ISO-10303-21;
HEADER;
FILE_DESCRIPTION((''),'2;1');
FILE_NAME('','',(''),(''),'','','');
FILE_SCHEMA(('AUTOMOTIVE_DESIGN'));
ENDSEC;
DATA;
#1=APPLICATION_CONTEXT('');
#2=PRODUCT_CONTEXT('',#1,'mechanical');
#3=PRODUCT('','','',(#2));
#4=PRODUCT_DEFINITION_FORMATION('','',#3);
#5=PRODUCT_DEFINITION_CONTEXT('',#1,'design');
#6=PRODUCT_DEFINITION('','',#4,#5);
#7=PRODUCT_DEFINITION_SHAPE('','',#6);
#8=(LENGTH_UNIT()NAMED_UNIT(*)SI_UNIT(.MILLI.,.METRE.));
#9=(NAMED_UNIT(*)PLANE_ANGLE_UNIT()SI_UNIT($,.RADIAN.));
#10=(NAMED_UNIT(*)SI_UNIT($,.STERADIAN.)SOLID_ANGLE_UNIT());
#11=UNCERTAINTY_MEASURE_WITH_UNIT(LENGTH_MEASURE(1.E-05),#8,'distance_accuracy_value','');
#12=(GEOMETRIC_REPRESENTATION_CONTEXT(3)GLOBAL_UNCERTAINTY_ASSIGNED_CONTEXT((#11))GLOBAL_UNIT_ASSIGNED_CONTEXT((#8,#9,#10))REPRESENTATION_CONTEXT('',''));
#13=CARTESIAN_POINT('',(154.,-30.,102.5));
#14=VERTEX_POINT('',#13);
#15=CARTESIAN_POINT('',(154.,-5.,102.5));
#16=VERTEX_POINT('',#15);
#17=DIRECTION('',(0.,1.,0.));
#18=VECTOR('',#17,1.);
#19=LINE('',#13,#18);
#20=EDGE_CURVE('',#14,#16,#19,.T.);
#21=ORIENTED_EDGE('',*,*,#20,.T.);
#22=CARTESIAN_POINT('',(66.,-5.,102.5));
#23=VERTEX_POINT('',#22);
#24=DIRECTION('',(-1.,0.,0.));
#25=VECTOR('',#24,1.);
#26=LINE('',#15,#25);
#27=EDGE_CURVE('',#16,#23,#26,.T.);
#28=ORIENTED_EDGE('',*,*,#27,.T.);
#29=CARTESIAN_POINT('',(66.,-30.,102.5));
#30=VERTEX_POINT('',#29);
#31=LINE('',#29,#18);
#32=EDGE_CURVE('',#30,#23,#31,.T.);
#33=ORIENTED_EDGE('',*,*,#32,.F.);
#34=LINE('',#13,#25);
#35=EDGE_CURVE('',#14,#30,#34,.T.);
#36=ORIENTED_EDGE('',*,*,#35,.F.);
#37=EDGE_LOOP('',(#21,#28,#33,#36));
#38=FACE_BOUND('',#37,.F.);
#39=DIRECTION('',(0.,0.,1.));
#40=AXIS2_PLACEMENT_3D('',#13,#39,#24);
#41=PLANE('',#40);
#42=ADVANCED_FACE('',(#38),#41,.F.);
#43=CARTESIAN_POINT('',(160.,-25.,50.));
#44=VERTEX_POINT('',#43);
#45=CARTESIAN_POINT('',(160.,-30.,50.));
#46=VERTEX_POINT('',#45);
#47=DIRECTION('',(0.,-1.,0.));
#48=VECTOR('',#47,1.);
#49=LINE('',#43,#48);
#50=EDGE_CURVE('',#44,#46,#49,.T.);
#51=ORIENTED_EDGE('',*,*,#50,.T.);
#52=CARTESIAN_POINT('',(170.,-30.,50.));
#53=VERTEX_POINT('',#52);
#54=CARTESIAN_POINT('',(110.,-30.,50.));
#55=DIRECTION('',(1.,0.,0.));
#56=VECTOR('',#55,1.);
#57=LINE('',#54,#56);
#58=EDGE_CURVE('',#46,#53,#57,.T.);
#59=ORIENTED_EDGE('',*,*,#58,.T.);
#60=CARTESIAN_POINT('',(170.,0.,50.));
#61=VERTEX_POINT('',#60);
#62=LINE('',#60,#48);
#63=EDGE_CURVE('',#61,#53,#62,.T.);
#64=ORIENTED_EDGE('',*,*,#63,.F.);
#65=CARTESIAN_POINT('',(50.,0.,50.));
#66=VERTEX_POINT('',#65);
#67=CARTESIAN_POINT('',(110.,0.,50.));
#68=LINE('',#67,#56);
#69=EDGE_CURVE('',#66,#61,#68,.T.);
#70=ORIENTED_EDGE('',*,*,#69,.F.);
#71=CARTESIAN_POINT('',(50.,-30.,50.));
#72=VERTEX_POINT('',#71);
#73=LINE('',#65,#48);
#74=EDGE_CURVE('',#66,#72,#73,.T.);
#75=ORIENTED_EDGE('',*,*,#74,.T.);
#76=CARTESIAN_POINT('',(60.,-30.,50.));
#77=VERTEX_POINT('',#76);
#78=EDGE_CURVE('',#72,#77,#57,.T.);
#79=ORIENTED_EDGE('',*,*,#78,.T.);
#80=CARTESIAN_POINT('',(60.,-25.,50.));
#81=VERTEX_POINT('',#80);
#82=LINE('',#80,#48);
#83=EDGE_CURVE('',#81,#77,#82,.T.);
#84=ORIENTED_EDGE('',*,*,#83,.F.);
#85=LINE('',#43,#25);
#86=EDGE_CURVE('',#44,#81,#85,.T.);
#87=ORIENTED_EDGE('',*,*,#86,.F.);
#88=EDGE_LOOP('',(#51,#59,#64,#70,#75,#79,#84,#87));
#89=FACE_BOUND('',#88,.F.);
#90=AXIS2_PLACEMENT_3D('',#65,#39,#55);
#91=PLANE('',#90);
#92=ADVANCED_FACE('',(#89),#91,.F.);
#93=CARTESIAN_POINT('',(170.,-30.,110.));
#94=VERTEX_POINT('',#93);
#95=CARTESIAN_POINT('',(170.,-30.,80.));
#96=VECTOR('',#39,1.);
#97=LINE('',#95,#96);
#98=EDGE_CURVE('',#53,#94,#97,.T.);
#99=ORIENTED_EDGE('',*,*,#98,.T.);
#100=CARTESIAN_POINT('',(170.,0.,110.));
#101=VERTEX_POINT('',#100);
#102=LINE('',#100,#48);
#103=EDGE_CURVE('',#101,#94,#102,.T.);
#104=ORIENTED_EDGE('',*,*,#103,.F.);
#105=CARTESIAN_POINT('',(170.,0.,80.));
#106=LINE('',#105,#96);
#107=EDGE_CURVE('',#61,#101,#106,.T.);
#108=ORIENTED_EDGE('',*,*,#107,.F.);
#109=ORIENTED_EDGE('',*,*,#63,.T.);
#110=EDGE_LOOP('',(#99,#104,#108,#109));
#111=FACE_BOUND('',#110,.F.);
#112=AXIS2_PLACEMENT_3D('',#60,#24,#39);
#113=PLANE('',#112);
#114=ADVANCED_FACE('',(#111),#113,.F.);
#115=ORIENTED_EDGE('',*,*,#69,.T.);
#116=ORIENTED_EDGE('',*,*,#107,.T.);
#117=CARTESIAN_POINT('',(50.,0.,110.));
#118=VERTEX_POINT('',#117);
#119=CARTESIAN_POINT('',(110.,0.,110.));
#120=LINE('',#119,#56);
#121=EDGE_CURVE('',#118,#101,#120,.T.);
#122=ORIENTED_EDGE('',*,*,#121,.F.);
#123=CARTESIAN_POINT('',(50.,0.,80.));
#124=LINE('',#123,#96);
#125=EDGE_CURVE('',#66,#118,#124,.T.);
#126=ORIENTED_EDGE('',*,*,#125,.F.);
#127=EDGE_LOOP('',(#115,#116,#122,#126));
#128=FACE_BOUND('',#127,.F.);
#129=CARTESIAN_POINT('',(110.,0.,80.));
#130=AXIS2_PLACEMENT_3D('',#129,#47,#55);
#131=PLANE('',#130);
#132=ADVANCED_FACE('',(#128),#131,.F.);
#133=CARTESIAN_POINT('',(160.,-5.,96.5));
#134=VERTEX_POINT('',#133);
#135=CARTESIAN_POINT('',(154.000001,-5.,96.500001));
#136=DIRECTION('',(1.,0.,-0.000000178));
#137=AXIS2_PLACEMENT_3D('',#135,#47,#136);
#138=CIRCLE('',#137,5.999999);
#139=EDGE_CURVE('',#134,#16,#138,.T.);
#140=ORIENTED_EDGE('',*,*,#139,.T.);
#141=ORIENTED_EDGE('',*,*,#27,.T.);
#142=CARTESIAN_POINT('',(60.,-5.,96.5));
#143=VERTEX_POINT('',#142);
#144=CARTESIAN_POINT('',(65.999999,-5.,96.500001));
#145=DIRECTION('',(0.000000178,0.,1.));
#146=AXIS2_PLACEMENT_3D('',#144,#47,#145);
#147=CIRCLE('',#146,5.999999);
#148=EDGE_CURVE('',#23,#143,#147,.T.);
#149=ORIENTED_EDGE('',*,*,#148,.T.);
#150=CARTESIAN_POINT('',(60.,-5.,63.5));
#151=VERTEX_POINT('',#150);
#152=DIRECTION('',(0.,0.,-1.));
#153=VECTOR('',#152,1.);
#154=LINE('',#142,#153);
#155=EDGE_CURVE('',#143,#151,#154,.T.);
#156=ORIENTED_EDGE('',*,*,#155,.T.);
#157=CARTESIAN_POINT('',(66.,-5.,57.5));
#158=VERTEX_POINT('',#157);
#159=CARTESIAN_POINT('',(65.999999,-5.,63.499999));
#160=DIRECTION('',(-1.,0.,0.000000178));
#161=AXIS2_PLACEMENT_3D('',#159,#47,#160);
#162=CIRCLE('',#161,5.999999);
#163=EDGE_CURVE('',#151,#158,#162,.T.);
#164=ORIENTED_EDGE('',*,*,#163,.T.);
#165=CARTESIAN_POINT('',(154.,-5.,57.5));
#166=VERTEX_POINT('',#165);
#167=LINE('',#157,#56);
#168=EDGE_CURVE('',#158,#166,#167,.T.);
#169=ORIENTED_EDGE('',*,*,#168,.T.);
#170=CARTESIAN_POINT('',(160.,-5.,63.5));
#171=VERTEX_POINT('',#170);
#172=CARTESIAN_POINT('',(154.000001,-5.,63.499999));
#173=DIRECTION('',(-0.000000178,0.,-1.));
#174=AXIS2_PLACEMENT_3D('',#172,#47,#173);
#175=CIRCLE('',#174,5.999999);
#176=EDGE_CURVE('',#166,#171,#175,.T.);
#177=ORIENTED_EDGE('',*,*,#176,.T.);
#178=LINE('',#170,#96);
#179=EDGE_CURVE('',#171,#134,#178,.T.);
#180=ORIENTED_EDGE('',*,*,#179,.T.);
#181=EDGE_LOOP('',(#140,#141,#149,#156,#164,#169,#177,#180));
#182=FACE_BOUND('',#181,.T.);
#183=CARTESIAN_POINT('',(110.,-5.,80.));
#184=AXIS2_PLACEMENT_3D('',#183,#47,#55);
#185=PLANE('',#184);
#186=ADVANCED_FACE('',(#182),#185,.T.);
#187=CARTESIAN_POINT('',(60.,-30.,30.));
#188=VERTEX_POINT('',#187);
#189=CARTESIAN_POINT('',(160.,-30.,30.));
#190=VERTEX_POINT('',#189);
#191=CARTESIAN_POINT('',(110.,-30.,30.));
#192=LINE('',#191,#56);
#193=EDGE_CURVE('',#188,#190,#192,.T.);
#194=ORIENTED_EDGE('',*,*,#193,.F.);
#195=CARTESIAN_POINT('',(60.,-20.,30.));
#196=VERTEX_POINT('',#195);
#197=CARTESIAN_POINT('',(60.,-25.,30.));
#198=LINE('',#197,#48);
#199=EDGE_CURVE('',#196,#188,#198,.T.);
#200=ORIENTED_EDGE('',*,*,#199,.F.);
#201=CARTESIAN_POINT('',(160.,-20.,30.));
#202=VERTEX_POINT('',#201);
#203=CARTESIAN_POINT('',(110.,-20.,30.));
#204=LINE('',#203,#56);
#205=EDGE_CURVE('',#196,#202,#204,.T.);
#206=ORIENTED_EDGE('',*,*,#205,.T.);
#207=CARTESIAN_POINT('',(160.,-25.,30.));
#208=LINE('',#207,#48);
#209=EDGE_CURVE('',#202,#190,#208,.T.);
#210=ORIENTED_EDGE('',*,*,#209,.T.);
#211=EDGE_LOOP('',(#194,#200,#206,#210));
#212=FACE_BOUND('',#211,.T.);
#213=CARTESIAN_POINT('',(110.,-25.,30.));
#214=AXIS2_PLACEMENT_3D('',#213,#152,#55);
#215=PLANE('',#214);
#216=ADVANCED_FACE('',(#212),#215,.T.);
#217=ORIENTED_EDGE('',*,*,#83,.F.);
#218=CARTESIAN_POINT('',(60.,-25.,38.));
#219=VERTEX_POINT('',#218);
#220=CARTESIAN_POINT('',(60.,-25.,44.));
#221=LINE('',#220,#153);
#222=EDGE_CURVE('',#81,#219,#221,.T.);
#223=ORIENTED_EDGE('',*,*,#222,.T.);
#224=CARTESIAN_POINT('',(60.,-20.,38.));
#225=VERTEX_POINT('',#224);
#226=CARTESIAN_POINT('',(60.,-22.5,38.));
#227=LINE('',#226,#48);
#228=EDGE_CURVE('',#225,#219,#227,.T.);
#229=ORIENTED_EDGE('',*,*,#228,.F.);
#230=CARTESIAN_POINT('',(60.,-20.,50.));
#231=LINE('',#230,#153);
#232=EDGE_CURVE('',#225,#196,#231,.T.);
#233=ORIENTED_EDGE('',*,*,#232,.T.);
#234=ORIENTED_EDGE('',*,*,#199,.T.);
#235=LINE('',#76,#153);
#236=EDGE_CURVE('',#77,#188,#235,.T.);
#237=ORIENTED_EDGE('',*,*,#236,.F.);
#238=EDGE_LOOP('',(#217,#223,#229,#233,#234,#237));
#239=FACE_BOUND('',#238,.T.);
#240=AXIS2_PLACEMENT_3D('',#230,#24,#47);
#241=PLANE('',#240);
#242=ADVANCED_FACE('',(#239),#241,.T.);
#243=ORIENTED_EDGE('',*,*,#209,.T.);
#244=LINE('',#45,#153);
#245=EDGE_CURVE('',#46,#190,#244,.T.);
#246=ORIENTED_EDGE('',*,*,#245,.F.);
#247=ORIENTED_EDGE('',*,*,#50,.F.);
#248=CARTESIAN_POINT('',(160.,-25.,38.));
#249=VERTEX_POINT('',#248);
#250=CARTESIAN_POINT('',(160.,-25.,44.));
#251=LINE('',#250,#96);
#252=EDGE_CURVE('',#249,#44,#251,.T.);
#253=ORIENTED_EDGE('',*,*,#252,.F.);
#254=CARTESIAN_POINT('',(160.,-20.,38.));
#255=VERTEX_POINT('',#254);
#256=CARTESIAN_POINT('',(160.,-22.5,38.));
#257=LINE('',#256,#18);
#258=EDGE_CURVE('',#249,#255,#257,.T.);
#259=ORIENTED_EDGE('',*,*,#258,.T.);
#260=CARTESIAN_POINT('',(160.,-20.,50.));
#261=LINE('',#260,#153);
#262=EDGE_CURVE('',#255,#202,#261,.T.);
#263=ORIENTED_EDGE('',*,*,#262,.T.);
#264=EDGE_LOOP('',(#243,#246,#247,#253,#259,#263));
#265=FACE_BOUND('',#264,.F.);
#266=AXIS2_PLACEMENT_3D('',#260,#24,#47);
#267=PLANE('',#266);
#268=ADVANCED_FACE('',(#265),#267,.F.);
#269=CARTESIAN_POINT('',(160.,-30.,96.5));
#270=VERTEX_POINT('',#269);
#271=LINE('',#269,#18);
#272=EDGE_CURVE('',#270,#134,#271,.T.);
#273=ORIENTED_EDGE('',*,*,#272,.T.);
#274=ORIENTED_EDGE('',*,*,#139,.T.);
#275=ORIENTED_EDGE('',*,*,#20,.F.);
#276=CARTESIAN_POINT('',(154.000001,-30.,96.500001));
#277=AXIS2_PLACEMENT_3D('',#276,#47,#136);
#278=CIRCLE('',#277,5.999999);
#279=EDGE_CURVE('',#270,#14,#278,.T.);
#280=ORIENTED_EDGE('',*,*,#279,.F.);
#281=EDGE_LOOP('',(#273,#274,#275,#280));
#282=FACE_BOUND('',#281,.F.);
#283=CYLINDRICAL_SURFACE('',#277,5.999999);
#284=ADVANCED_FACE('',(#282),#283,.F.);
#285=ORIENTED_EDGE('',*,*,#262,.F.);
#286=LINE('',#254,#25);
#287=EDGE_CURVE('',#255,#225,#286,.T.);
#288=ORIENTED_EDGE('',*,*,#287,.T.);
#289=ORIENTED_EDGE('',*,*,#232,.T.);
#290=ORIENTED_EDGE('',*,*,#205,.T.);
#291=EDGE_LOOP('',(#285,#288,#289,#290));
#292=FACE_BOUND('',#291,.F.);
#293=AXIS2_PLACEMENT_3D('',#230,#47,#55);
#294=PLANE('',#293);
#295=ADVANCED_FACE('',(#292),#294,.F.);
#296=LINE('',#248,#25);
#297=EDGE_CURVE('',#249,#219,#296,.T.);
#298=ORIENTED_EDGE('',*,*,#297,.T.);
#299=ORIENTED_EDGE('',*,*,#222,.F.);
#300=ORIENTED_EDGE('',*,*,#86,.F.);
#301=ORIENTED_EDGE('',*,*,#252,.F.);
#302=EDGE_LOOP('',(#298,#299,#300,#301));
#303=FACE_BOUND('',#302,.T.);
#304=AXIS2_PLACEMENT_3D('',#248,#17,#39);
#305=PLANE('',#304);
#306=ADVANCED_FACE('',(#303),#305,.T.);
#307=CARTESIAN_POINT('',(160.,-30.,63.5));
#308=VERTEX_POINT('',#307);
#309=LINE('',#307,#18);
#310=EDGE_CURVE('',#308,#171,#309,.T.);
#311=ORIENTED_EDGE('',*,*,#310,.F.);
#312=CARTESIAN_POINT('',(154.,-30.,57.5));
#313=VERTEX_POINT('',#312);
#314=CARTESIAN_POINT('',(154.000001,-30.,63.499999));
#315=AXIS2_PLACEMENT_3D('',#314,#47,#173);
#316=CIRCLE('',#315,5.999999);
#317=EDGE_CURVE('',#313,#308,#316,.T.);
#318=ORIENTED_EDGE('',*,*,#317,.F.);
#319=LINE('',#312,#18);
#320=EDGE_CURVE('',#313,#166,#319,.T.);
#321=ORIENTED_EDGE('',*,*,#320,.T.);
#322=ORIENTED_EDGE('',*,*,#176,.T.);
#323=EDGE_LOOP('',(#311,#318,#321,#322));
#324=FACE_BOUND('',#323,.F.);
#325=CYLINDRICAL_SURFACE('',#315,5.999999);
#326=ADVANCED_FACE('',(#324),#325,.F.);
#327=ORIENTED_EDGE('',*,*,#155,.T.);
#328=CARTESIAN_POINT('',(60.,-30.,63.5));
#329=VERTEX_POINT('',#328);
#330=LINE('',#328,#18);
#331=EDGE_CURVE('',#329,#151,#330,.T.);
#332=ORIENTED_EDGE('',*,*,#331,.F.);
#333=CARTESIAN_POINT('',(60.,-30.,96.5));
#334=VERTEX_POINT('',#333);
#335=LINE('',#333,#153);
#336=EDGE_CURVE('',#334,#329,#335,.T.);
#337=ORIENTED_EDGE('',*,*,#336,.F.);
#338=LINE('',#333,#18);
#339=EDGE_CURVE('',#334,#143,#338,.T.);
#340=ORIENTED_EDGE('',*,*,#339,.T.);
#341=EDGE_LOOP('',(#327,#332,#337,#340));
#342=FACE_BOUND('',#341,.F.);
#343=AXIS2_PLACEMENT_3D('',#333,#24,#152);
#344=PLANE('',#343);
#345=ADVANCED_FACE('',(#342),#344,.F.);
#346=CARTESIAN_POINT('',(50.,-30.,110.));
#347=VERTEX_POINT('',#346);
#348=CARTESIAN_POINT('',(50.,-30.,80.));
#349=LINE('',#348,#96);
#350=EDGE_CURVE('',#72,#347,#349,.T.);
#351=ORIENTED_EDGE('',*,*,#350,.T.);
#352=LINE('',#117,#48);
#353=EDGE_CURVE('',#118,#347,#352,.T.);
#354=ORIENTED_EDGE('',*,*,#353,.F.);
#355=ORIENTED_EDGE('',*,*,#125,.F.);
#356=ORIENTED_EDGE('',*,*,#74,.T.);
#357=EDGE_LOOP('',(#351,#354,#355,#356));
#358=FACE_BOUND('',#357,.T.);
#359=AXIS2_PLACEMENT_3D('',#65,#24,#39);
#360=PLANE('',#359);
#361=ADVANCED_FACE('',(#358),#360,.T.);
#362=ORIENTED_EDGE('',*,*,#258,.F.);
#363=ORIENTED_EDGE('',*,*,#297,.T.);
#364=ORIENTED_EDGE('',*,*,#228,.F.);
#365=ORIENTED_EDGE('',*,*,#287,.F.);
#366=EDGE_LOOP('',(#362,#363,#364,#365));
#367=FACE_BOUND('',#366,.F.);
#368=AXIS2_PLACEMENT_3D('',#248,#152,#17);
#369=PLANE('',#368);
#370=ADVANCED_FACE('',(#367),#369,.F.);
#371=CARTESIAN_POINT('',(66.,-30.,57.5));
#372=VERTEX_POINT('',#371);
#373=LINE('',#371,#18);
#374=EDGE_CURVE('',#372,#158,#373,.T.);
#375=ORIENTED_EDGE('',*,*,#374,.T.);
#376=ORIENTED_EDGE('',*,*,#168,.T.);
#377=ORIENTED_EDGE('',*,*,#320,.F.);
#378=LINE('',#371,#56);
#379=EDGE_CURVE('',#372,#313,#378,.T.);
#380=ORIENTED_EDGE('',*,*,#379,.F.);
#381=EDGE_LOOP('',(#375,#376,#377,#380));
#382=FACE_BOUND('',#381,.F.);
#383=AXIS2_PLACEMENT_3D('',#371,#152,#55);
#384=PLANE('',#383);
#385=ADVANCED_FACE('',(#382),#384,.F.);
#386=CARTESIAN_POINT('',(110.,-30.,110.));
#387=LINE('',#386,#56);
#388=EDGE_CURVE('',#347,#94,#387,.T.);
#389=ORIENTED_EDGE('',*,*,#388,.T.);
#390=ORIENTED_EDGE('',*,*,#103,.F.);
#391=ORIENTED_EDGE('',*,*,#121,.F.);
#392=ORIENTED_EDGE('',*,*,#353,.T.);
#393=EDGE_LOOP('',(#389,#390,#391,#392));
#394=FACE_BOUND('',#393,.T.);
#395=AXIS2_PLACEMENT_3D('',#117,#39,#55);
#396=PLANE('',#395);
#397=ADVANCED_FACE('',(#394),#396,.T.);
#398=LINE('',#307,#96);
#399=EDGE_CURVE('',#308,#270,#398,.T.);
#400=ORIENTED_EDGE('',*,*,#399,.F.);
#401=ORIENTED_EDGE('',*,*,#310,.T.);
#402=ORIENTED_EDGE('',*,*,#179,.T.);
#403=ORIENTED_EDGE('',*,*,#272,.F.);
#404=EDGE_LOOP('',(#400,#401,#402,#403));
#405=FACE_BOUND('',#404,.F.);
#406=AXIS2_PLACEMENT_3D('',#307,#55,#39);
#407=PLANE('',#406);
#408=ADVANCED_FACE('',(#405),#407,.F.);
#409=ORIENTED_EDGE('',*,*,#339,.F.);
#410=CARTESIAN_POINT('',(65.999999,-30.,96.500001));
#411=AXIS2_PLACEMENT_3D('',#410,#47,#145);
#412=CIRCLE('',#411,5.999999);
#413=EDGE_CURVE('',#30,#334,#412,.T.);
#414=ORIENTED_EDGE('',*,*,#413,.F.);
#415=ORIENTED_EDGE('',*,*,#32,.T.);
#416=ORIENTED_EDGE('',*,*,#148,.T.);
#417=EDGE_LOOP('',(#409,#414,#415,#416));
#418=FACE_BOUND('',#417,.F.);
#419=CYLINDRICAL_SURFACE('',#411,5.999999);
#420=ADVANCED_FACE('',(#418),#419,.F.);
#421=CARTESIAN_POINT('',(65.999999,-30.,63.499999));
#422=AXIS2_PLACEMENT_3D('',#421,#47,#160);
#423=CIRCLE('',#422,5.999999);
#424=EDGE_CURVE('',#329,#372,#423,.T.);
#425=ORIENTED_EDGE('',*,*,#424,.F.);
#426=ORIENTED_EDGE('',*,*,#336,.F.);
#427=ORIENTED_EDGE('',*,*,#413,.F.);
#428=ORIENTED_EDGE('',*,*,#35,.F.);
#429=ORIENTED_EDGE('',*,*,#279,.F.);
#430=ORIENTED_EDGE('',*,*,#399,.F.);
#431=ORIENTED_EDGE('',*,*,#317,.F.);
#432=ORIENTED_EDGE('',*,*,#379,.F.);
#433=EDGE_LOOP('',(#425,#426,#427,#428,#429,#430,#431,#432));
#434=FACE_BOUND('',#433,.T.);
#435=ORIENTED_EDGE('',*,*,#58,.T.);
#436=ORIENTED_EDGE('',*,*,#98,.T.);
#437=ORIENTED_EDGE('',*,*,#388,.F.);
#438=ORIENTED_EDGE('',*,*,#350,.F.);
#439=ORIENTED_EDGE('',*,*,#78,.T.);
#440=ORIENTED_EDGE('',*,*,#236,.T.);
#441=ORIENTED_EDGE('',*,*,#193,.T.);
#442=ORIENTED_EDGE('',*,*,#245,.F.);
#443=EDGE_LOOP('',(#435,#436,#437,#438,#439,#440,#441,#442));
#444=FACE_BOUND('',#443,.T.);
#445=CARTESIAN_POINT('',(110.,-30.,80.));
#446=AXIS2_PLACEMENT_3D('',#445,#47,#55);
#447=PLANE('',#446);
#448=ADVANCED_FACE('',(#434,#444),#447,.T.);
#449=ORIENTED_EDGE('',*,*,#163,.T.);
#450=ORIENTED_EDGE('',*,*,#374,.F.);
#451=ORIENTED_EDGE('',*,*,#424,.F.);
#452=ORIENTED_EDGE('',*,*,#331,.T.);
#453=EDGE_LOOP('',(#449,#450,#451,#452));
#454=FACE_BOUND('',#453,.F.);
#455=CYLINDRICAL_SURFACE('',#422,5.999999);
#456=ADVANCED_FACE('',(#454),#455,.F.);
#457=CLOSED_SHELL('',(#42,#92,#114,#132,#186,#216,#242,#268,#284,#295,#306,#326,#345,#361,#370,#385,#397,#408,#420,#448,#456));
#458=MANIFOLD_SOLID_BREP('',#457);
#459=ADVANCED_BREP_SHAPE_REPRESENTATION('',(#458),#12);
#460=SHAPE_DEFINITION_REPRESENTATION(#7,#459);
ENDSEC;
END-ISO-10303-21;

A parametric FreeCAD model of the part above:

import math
import FreeCAD as App
import Part
import Sketcher
Q = App.Units.Quantity


def add_polygon(sketch, points):
    """Adds a closed chain of lines whose ends are joined by coincident constraints."""
    first, n = sketch.GeometryCount, len(points)
    for a, b in zip(points, points[1:] + points[:1]):
        sketch.addGeometry(Part.LineSegment(App.Vector(*a, 0), App.Vector(*b, 0)), False)
    for i in range(n):
        sketch.addConstraint(Sketcher.Constraint("Coincident", first + i, 2, first + (i + 1) % n, 1))

doc = App.newDocument("Part")
body = doc.addObject("PartDesign::Body", "Body")

sketch1 = body.newObject("Sketcher::SketchObject", "Sketch")
sketch1.AttachmentSupport = (doc.getObject("XZ_Plane"), [""])
sketch1.MapMode = "FlatFace"
add_polygon(sketch1, [(50, 110), (50, 50), (170, 50), (170, 110)])
sketch1.addConstraint([
    Sketcher.Constraint("Vertical", 0),
    Sketcher.Constraint("Horizontal", 1),
    Sketcher.Constraint("Vertical", 2),
    Sketcher.Constraint("Horizontal", 3),
    Sketcher.Constraint("DistanceX", 1, 1, 1, 2, Q("120 mm")),
    Sketcher.Constraint("DistanceY", 0, 2, 0, 1, Q("60 mm")),
    Sketcher.Constraint("DistanceX", -1, 1, 0, 2, Q("50 mm")),
    Sketcher.Constraint("DistanceY", -1, 1, 0, 2, Q("50 mm")),
])
pad1 = body.newObject("PartDesign::Pad", "Pad")
pad1.Profile = sketch1
pad1.Length = 30

sketch2 = body.newObject("Sketcher::SketchObject", "Sketch001")
sketch2.AttachmentSupport = (doc.getObject("XZ_Plane"), [""])
sketch2.MapMode = "FlatFace"
sketch2.AttachmentOffset = App.Placement(App.Vector(0, 0, 30), App.Rotation())
sketch2.addGeometry([
    Part.LineSegment(App.Vector(66, 58, 0), App.Vector(154, 58, 0)),
    Part.ArcOfCircle(Part.Circle(App.Vector(154, 63, 0), App.Vector(0, 0, 1), 6), math.radians(-90), math.radians(0)),
    Part.LineSegment(App.Vector(160, 64, 0), App.Vector(160, 96, 0)),
    Part.ArcOfCircle(Part.Circle(App.Vector(154, 97, 0), App.Vector(0, 0, 1), 6), math.radians(0), math.radians(90)),
    Part.LineSegment(App.Vector(154, 102, 0), App.Vector(66, 102, 0)),
    Part.ArcOfCircle(Part.Circle(App.Vector(66, 97, 0), App.Vector(0, 0, 1), 6), math.radians(90), math.radians(180)),
    Part.LineSegment(App.Vector(60, 96, 0), App.Vector(60, 64, 0)),
    Part.ArcOfCircle(Part.Circle(App.Vector(66, 63, 0), App.Vector(0, 0, 1), 6), math.radians(180), math.radians(270)),
], False)
sketch2.addConstraint([
    Sketcher.Constraint("Tangent", 0, 2, 1, 1),
    Sketcher.Constraint("Tangent", 1, 2, 2, 1),
    Sketcher.Constraint("Tangent", 2, 2, 3, 1),
    Sketcher.Constraint("Tangent", 3, 2, 4, 1),
    Sketcher.Constraint("Tangent", 4, 2, 5, 1),
    Sketcher.Constraint("Tangent", 5, 2, 6, 1),
    Sketcher.Constraint("Tangent", 6, 2, 7, 1),
    Sketcher.Constraint("Tangent", 7, 2, 0, 1),
    Sketcher.Constraint("Horizontal", 0),
    Sketcher.Constraint("Vertical", 2),
    Sketcher.Constraint("Horizontal", 4),
    Sketcher.Constraint("Vertical", 6),
    Sketcher.Constraint("Equal", 1, 3),
    Sketcher.Constraint("Equal", 3, 5),
    Sketcher.Constraint("Equal", 5, 7),
    Sketcher.Constraint("Radius", 1, Q("5.999999 mm")),
    Sketcher.Constraint("DistanceX", 0, 1, 0, 2, Q("88 mm")),
    Sketcher.Constraint("DistanceY", 2, 1, 2, 2, Q("33 mm")),
    Sketcher.Constraint("DistanceX", -1, 1, 1, 3, Q("154.000001 mm")),
    Sketcher.Constraint("DistanceY", -1, 1, 1, 3, Q("63.499999 mm")),
])
pocket1 = body.newObject("PartDesign::Pocket", "Pocket")
pocket1.Profile = sketch2
pocket1.Length = 25

sketch3 = body.newObject("Sketcher::SketchObject", "Sketch002")
sketch3.AttachmentSupport = (doc.getObject("XY_Plane"), [""])
sketch3.MapMode = "FlatFace"
sketch3.AttachmentOffset = App.Placement(App.Vector(0, 0, 50), App.Rotation())
add_polygon(sketch3, [(60, -30), (60, -20), (160, -20), (160, -30)])
sketch3.addConstraint([
    Sketcher.Constraint("Vertical", 0),
    Sketcher.Constraint("Horizontal", 1),
    Sketcher.Constraint("Vertical", 2),
    Sketcher.Constraint("Horizontal", 3),
    Sketcher.Constraint("DistanceX", 1, 1, 1, 2, Q("100 mm")),
    Sketcher.Constraint("DistanceY", 0, 1, 0, 2, Q("10 mm")),
    Sketcher.Constraint("DistanceX", -1, 1, 0, 2, Q("60 mm")),
    Sketcher.Constraint("DistanceY", 0, 2, -1, 1, Q("20 mm")),
])
pad2 = body.newObject("PartDesign::Pad", "Pad001")
pad2.Profile = sketch3
pad2.Length = 20
pad2.Reversed = True

sketch4 = body.newObject("Sketcher::SketchObject", "Sketch003")
sketch4.AttachmentSupport = (doc.getObject("YZ_Plane"), [""])
sketch4.MapMode = "FlatFace"
sketch4.AttachmentOffset = App.Placement(App.Vector(0, 0, 160), App.Rotation())
add_polygon(sketch4, [(-25, 50), (-25, 38), (-20, 38), (-20, 50)])
sketch4.addConstraint([
    Sketcher.Constraint("Vertical", 0),
    Sketcher.Constraint("Horizontal", 1),
    Sketcher.Constraint("Vertical", 2),
    Sketcher.Constraint("Horizontal", 3),
    Sketcher.Constraint("DistanceX", 1, 1, 1, 2, Q("5 mm")),
    Sketcher.Constraint("DistanceY", 0, 2, 0, 1, Q("12 mm")),
    Sketcher.Constraint("DistanceX", 0, 2, -1, 1, Q("25 mm")),
    Sketcher.Constraint("DistanceY", -1, 1, 0, 2, Q("38 mm")),
])
pocket2 = body.newObject("PartDesign::Pocket", "Pocket001")
pocket2.Profile = sketch4
pocket2.Type = "ThroughAll"

doc.recompute()
